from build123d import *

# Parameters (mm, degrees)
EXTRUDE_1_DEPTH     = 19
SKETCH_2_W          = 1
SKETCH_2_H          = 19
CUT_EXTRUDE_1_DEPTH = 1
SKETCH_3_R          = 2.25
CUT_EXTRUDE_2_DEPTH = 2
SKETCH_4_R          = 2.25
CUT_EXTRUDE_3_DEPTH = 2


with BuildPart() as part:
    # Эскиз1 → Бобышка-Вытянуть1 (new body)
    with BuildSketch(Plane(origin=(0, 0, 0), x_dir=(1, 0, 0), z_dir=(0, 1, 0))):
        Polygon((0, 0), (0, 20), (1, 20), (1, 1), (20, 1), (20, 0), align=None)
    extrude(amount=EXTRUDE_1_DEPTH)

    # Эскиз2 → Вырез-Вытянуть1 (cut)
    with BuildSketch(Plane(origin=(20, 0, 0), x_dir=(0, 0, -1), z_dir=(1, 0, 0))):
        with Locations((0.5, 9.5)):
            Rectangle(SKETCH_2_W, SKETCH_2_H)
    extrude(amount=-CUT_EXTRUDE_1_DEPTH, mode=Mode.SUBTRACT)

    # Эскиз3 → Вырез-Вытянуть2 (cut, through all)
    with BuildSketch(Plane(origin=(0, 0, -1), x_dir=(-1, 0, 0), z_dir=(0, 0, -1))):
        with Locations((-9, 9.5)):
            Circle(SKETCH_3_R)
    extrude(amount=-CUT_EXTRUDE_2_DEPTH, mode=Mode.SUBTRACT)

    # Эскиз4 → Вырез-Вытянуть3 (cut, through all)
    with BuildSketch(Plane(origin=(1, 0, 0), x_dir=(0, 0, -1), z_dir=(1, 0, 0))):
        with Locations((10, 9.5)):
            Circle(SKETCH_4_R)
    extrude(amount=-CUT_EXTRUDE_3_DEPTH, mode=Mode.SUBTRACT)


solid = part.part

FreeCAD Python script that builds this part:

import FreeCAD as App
import Part
import Sketcher
from FreeCAD import Vector
Q = App.Units.Quantity


def add_polygon(sketch, points):
    """Adds a closed chain of lines whose ends are joined by coincident constraints."""
    first, n = sketch.GeometryCount, len(points)
    for a, b in zip(points, points[1:] + points[:1]):
        sketch.addGeometry(Part.LineSegment(App.Vector(*a, 0), App.Vector(*b, 0)), False)
    for i in range(n):
        sketch.addConstraint(Sketcher.Constraint("Coincident", first + i, 2, first + (i + 1) % n, 1))

doc = App.newDocument("Part")
params = doc.addObject("Spreadsheet::Sheet", "Params")
for row, (alias, value) in enumerate([
    ("sketch1_width", "20 mm"),
    ("sketch1_width2", "19 mm"),
    ("pad1_length", "19 mm"),
    ("sketch2_width", "19 mm"),
    ("sketch2_height", "1 mm"),
    ("pocket1_length", "1 mm"),
    ("sketch3_diameter", "4.5 mm"),
    ("sketch4_diameter", "4.5 mm"),
], start=1):
    params.set(f"A{row}", alias)
    params.set(f"B{row}", "=" + value)
    params.setAlias(f"B{row}", alias)

body = doc.addObject("PartDesign::Body", "Body")

sketch1 = body.newObject("Sketcher::SketchObject", "Sketch")
sketch1.AttachmentSupport = (doc.getObject("XZ_Plane"), [""])
sketch1.MapMode = "FlatFace"
add_polygon(sketch1, [(0, -20), (0, 0), (20, 0), (20, -1), (1, -1), (1, -20)])
sketch1.addConstraint([
    Sketcher.Constraint("Vertical", 0),
    Sketcher.Constraint("Horizontal", 1),
    Sketcher.Constraint("Vertical", 2),
    Sketcher.Constraint("Horizontal", 3),
    Sketcher.Constraint("Vertical", 4),
    Sketcher.Constraint("Horizontal", 5),
    Sketcher.Constraint("Coincident", 0, 2, -1, 1),
    Sketcher.Constraint("Equal", 1, 0),
    Sketcher.Constraint("Equal", 5, 2),
    Sketcher.Constraint("DistanceX", 1, 1, 1, 2, Q("20 mm")),
    Sketcher.Constraint("DistanceX", 3, 2, 3, 1, Q("19 mm")),
])
sketch1.setExpression("Constraints[15]", "Params.sketch1_width")
sketch1.setExpression("Constraints[16]", "Params.sketch1_width2")
pad1 = body.newObject("PartDesign::Pad", "Pad")
pad1.Profile = sketch1
pad1.setExpression("Length", "Params.pad1_length")
pad1.Reversed = True

sketch2 = body.newObject("Sketcher::SketchObject", "Sketch001")
sketch2.AttachmentSupport = (doc.getObject("YZ_Plane"), [""])
sketch2.MapMode = "FlatFace"
sketch2.AttachmentOffset = App.Placement(Vector(0, 0, 20), App.Rotation())
add_polygon(sketch2, [(19, 0), (0, 0), (0, -1), (19, -1)])
sketch2.addConstraint([
    Sketcher.Constraint("Horizontal", 0),
    Sketcher.Constraint("Vertical", 1),
    Sketcher.Constraint("Horizontal", 2),
    Sketcher.Constraint("Vertical", 3),
    Sketcher.Constraint("Coincident", 0, 2, -1, 1),
    Sketcher.Constraint("DistanceX", 0, 2, 0, 1, Q("19 mm")),
    Sketcher.Constraint("DistanceY", 1, 2, 1, 1, Q("1 mm")),
])
sketch2.setExpression("Constraints[9]", "Params.sketch2_width")
sketch2.setExpression("Constraints[10]", "Params.sketch2_height")
pocket1 = body.newObject("PartDesign::Pocket", "Pocket")
pocket1.Profile = sketch2
pocket1.setExpression("Length", "Params.pocket1_length")

sketch3 = body.newObject("Sketcher::SketchObject", "Sketch002")
sketch3.AttachmentSupport = (doc.getObject("XY_Plane"), [""])
sketch3.MapMode = "FlatFace"
sketch3.AttachmentOffset = App.Placement(Vector(0, 0, -1), App.Rotation())
sketch3.addGeometry(Part.Circle(Vector(9, 9.5, 0), Vector(0, 0, 1), 2.2), False)
sketch3.addConstraint([
    Sketcher.Constraint("Diameter", 0, Q("4.5 mm")),
    Sketcher.Constraint("DistanceX", -1, 1, 0, 3, Q("9 mm")),
    Sketcher.Constraint("DistanceY", -1, 1, 0, 3, Q("9.5 mm")),
])
sketch3.setExpression("Constraints[0]", "Params.sketch3_diameter")
pocket2 = body.newObject("PartDesign::Pocket", "Pocket001")
pocket2.Profile = sketch3
pocket2.Type = "ThroughAll"
pocket2.Reversed = True

sketch4 = body.newObject("Sketcher::SketchObject", "Sketch003")
sketch4.AttachmentSupport = (doc.getObject("YZ_Plane"), [""])
sketch4.MapMode = "FlatFace"
sketch4.AttachmentOffset = App.Placement(Vector(0, 0, 1), App.Rotation())
sketch4.addGeometry(Part.Circle(Vector(9.5, -10, 0), Vector(0, 0, 1), 2.2), False)
sketch4.addConstraint([
    Sketcher.Constraint("Diameter", 0, Q("4.5 mm")),
    Sketcher.Constraint("DistanceY", 0, 3, -1, 1, Q("10 mm")),
    Sketcher.Constraint("DistanceX", -1, 1, 0, 3, Q("9.5 mm")),
])
sketch4.setExpression("Constraints[0]", "Params.sketch4_diameter")
pocket3 = body.newObject("PartDesign::Pocket", "Pocket002")
pocket3.Profile = sketch4
pocket3.Type = "ThroughAll"

doc.recompute()
